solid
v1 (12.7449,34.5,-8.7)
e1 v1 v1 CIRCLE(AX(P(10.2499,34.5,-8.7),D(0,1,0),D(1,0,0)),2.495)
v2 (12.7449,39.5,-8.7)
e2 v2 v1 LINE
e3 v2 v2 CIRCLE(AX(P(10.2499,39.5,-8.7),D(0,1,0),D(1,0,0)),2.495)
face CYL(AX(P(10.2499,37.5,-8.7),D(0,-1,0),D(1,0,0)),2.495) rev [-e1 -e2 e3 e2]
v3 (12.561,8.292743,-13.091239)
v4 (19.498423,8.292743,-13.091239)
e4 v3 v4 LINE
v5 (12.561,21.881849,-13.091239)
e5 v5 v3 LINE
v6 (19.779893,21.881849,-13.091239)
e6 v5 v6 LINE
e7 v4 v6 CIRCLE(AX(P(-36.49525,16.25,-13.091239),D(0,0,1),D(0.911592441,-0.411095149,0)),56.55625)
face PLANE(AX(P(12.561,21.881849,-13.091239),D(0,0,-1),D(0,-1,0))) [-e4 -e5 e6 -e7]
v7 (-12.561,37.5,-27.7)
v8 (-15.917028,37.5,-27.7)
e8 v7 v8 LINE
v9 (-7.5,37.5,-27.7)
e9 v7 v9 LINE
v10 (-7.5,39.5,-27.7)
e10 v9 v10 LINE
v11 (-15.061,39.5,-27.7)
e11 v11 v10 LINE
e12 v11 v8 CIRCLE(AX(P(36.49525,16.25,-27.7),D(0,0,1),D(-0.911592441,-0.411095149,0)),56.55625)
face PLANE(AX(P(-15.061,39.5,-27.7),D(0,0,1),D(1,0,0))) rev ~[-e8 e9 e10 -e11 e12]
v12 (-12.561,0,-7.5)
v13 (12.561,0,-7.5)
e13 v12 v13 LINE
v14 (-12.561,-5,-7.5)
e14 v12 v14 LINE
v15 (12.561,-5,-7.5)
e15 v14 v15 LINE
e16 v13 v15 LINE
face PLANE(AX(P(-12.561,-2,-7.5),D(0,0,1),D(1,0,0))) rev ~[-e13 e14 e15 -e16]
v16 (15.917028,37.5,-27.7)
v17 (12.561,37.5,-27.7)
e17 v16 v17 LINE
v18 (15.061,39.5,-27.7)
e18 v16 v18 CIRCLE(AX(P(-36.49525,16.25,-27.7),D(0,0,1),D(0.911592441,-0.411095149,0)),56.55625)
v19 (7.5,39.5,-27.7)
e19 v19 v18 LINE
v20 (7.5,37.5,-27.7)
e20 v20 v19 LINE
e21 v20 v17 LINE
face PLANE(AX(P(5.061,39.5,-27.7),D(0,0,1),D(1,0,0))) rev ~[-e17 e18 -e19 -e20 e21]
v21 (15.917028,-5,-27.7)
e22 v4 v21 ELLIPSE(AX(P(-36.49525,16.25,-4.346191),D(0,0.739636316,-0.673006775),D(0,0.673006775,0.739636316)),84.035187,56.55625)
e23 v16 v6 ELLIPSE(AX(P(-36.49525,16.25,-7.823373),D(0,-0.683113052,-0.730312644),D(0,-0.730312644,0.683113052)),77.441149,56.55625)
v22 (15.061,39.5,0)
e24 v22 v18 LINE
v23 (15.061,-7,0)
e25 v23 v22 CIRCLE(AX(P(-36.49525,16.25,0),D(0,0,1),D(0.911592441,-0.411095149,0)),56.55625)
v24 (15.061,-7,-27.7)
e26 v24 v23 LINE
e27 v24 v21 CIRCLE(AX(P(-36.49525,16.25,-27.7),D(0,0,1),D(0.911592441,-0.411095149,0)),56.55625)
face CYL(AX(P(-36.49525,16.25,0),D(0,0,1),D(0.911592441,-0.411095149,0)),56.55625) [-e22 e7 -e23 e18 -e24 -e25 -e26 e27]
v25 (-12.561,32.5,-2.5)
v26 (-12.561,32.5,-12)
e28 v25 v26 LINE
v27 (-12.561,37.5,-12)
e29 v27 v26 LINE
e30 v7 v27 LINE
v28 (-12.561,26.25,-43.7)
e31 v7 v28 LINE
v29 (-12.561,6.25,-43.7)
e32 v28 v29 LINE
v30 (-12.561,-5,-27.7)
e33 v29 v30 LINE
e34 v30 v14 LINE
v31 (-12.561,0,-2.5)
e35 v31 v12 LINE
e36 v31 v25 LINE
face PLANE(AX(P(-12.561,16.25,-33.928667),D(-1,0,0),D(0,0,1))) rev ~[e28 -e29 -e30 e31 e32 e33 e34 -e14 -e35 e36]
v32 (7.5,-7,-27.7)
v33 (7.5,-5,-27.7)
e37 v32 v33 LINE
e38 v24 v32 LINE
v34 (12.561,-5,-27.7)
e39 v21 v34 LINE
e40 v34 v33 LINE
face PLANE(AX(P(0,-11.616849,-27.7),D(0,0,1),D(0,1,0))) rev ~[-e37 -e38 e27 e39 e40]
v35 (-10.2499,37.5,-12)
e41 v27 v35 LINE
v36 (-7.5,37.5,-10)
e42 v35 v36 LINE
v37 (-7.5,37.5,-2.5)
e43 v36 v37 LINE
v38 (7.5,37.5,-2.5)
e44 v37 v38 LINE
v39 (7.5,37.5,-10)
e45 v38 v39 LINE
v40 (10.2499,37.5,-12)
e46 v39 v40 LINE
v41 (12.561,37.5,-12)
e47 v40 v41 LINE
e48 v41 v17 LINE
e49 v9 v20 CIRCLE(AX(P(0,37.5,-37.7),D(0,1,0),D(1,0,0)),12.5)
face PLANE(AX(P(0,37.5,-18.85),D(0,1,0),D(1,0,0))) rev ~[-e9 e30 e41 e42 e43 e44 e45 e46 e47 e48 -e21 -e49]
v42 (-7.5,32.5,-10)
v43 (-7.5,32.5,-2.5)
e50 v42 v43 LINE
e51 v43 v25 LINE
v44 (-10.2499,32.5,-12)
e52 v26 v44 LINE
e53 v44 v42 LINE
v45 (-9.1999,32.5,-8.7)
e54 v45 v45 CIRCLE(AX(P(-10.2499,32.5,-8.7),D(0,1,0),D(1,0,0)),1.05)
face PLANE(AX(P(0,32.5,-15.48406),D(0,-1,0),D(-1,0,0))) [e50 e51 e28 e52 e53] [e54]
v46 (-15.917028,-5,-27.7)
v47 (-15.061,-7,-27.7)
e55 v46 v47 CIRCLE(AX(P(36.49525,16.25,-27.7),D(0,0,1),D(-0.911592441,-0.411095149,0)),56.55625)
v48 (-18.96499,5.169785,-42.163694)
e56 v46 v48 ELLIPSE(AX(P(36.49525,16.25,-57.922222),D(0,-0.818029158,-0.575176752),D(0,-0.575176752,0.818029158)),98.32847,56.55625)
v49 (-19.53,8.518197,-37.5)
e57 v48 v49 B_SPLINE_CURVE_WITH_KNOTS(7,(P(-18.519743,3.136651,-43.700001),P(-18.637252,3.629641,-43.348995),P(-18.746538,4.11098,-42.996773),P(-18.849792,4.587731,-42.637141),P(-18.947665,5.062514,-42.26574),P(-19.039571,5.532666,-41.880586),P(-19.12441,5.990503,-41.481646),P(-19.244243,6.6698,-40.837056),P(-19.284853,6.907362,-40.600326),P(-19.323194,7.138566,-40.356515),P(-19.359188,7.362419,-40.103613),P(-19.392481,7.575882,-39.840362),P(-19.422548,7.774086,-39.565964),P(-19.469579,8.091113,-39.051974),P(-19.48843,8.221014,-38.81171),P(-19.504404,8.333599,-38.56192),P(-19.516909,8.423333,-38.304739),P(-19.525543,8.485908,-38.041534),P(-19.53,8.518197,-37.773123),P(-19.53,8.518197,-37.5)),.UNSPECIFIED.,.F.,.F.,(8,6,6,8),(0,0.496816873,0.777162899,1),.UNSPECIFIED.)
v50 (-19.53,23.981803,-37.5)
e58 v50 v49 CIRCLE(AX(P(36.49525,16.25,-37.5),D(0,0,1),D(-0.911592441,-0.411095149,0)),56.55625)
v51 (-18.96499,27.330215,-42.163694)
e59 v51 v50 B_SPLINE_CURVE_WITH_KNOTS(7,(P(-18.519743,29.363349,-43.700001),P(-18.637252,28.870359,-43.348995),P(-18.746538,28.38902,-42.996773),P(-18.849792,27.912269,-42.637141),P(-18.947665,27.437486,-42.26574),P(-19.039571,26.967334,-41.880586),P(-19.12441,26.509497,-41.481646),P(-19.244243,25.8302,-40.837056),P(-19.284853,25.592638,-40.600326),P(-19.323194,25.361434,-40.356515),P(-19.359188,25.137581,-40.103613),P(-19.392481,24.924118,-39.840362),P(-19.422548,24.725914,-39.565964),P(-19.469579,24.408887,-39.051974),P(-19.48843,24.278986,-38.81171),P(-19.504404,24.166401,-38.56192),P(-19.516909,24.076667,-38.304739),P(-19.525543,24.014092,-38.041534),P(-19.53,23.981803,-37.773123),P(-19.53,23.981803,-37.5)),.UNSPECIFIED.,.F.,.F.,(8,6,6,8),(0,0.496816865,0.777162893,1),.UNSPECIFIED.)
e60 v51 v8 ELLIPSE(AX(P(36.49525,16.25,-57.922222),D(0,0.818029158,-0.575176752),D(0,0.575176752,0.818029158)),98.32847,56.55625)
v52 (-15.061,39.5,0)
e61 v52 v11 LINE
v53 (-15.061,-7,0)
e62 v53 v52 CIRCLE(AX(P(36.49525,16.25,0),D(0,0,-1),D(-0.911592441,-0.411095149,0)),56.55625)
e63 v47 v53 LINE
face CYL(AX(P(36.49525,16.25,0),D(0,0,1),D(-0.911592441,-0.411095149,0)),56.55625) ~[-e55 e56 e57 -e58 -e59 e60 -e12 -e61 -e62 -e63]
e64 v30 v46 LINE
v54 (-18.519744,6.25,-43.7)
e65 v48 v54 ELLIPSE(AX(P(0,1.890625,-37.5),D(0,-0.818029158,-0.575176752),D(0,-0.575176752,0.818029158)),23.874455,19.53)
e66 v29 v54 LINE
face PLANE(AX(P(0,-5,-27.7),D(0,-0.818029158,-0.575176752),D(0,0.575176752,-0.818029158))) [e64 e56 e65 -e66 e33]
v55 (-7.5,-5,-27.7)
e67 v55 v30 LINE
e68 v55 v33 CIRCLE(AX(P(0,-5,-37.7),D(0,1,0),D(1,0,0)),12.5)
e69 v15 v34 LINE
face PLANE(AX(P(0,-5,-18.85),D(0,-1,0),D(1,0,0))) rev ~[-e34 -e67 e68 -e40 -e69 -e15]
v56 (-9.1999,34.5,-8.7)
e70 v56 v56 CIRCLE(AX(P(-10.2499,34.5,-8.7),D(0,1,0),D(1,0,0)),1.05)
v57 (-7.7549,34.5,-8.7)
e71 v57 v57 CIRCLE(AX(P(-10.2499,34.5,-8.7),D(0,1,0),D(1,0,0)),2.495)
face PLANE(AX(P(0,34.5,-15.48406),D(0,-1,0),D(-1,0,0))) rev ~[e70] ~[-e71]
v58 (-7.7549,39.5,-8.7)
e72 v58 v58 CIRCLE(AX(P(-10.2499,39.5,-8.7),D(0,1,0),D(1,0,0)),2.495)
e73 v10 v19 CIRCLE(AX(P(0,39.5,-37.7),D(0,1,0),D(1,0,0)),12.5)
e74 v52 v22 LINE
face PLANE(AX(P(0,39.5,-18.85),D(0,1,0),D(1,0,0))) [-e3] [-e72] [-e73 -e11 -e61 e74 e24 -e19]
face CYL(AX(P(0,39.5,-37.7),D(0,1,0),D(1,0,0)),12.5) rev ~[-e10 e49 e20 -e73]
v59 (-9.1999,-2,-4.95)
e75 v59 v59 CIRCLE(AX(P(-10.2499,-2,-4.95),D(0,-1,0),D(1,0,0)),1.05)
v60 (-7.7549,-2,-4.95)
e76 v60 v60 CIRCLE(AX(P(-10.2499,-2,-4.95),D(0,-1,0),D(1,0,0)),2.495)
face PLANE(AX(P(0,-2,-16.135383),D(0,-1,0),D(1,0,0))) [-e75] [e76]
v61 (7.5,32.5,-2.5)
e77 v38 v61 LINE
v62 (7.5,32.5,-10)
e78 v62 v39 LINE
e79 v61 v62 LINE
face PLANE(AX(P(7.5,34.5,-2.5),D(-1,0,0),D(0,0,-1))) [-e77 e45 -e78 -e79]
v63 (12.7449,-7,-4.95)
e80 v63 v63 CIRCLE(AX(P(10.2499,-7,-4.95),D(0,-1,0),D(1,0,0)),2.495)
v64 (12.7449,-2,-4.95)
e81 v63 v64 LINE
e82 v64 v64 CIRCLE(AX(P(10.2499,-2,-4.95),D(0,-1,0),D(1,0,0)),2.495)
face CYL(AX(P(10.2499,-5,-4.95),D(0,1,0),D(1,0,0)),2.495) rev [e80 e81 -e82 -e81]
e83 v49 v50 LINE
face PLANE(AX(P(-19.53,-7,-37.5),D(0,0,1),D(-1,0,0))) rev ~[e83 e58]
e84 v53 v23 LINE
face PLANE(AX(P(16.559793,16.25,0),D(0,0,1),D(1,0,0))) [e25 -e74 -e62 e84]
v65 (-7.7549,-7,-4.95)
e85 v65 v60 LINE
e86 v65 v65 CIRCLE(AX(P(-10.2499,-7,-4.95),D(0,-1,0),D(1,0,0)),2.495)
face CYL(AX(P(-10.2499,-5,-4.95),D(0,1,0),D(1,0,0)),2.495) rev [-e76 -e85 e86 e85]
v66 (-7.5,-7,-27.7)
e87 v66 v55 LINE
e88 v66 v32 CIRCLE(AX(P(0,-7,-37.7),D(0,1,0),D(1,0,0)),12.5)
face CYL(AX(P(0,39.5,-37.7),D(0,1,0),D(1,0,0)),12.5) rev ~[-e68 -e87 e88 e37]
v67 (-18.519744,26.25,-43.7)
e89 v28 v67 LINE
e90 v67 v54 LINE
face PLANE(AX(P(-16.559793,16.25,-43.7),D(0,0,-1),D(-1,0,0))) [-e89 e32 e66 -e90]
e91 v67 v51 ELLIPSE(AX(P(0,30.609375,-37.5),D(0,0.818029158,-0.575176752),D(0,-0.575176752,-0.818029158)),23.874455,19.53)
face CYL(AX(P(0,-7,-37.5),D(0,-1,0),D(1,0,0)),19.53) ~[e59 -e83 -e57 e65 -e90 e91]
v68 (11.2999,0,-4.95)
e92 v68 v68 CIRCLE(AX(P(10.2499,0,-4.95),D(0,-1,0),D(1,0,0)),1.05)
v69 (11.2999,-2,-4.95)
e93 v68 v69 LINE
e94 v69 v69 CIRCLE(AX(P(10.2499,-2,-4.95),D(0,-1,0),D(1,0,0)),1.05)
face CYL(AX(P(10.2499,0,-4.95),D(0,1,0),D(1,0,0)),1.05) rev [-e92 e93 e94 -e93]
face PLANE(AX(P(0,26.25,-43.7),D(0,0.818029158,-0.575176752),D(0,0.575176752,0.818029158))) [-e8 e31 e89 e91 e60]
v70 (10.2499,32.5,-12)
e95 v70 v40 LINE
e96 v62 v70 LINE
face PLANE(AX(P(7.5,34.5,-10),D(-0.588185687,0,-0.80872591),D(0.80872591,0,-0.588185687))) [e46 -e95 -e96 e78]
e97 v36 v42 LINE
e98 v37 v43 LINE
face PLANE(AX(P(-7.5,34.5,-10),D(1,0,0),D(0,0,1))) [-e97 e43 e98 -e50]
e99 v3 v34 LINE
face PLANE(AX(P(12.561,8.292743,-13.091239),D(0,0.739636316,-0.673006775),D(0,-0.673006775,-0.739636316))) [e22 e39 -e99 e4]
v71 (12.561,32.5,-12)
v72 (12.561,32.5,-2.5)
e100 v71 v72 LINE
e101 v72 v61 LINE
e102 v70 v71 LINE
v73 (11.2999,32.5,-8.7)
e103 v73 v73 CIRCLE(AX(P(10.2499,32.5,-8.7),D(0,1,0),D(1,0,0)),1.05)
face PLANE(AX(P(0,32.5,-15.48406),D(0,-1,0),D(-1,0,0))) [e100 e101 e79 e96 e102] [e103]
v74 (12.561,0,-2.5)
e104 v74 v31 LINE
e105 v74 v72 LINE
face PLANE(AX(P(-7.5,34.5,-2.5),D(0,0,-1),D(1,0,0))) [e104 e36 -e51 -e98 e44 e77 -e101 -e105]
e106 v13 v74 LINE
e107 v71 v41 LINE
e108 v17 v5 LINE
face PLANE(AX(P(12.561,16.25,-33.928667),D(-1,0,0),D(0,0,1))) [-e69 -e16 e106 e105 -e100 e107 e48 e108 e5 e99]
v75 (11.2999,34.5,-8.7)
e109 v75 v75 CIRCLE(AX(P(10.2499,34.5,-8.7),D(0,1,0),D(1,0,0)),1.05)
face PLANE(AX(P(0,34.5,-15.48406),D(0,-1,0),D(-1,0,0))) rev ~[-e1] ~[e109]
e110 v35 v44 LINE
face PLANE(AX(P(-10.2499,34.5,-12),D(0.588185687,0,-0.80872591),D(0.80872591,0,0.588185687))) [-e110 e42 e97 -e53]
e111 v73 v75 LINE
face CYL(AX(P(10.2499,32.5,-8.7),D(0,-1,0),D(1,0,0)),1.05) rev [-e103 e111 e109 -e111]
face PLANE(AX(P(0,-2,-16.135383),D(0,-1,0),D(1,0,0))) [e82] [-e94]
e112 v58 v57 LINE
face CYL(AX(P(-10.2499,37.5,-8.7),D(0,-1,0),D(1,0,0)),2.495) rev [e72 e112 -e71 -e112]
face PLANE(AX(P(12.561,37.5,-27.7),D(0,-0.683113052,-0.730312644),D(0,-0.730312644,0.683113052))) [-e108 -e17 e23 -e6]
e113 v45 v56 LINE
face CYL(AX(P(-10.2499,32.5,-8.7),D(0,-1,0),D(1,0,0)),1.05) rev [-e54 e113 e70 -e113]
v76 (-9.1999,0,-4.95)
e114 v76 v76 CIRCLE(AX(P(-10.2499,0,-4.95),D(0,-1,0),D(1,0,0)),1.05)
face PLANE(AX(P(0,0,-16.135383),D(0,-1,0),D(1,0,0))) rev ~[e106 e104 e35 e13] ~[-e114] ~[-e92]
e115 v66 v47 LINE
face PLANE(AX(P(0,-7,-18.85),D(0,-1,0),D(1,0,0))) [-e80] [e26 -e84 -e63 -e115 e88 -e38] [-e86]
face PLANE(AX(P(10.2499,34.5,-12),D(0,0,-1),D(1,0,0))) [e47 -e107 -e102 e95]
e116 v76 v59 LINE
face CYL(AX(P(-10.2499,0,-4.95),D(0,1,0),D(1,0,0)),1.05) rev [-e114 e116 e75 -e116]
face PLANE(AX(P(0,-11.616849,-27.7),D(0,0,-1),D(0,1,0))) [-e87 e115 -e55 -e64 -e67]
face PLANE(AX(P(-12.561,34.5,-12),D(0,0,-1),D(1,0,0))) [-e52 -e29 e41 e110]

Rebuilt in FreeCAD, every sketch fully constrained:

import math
import FreeCAD as App
import Part
import Sketcher
Q = App.Units.Quantity


def add_polygon(sketch, points):
    """Adds a closed chain of lines whose ends are joined by coincident constraints."""
    first, n = sketch.GeometryCount, len(points)
    for a, b in zip(points, points[1:] + points[:1]):
        sketch.addGeometry(Part.LineSegment(App.Vector(*a, 0), App.Vector(*b, 0)), False)
    for i in range(n):
        sketch.addConstraint(Sketcher.Constraint("Coincident", first + i, 2, first + (i + 1) % n, 1))

doc = App.newDocument("Part")
body = doc.addObject("PartDesign::Body", "Body")

# Sketch on XZ plane
sketch1 = doc.addObject("Sketcher::SketchObject", "Sketch")
body.addObject(sketch1)
sketch1.AttachmentSupport = (doc.XZ_Plane, [""])
sketch1.MapMode = "FlatFace"
add_polygon(sketch1, [(15.1, 0), (15.1, -37.7), (12.6, -37.7), (12.6, -2.5), (-12.6, -2.5), (-12.6, -37.7), (-15.1, -37.7), (-15.1, 0)])  # lines 0-7
sketch1.addConstraint([
    Sketcher.Constraint("Vertical", 0),
    Sketcher.Constraint("Horizontal", 1),
    Sketcher.Constraint("Vertical", 2),
    Sketcher.Constraint("Horizontal", 3),
    Sketcher.Constraint("Vertical", 4),
    Sketcher.Constraint("Horizontal", 5),
    Sketcher.Constraint("Vertical", 6),
    Sketcher.Constraint("Horizontal", 7),
    Sketcher.Constraint("Symmetric", 6, 2, 7, 2, -1, 1),
    Sketcher.Constraint("Symmetric", 1, 2, 4, 2, -2),
    Sketcher.Constraint("DistanceX", 1, 2, 1, 1, Q("2.5 mm")),
    Sketcher.Constraint("DistanceY", 0, 2, 0, 1, Q("37.7 mm")),
    Sketcher.Constraint("DistanceY", 2, 1, 2, 2, Q("35.2 mm")),
    Sketcher.Constraint("DistanceX", 3, 2, 3, 1, Q("25.122 mm")),
])
pad1 = doc.addObject("PartDesign::Pad", "Pad")
body.addObject(pad1)
pad1.Profile = sketch1
pad1.Length = 32.5
pad1.Reversed = True

# Sketch on XZ plane
sketch2 = doc.addObject("Sketcher::SketchObject", "Sketch001")
body.addObject(sketch2)
sketch2.AttachmentSupport = (doc.XZ_Plane, [""])
sketch2.MapMode = "FlatFace"
add_polygon(sketch2, [(-15.1, 0), (-15.1, -37.7), (-12.6, -37.7), (-12.6, -7.5), (12.6, -7.5), (12.6, -37.7), (15.1, -37.7), (15.1, 0)])  # lines 0-7
sketch2.addGeometry(Part.Circle(App.Vector(-10.2, -5, 0), App.Vector(0, 0, 1), 1.1), False)  # 8
sketch2.addGeometry(Part.Circle(App.Vector(10.2, -5, 0), App.Vector(0, 0, 1), 1.1), False)  # 9
sketch2.addConstraint([
    Sketcher.Constraint("Vertical", 0),
    Sketcher.Constraint("Horizontal", 1),
    Sketcher.Constraint("Vertical", 2),
    Sketcher.Constraint("Horizontal", 3),
    Sketcher.Constraint("Vertical", 4),
    Sketcher.Constraint("Horizontal", 5),
    Sketcher.Constraint("Vertical", 6),
    Sketcher.Constraint("Horizontal", 7),
    Sketcher.Constraint("Equal", 8, 9),
    Sketcher.Constraint("Symmetric", 6, 2, 7, 2, -1, 1),
    Sketcher.Constraint("Symmetric", 8, 3, 9, 3, -2),
    Sketcher.Constraint("Symmetric", 1, 2, 4, 2, -2),
    Sketcher.Constraint("Diameter", 8, Q("2.1 mm")),
    Sketcher.Constraint("DistanceX", 1, 1, 1, 2, Q("2.5 mm")),
    Sketcher.Constraint("DistanceY", 0, 2, 0, 1, Q("37.7 mm")),
    Sketcher.Constraint("DistanceY", 2, 1, 2, 2, Q("30.2 mm")),
    Sketcher.Constraint("DistanceX", 3, 1, 3, 2, Q("25.122 mm")),
    Sketcher.Constraint("DistanceY", 8, 3, -1, 1, Q("4.95 mm")),
    Sketcher.Constraint("DistanceX", 8, 3, -1, 1, Q("10.2499 mm")),
])
pad2 = doc.addObject("PartDesign::Pad", "Pad001")
body.addObject(pad2)
pad2.Profile = sketch2
pad2.Length = 2

# Sketch on XZ plane
sketch3 = doc.addObject("Sketcher::SketchObject", "Sketch002")
body.addObject(sketch3)
sketch3.AttachmentSupport = (doc.XZ_Plane, [""])
sketch3.MapMode = "FlatFace"
sketch3.AttachmentOffset = App.Placement(App.Vector(0, 0, 2), App.Rotation())
add_polygon(sketch3, [(-15.1, 0), (-15.1, -37.7), (-12.6, -37.7), (-12.6, -7.5), (12.6, -7.5), (12.6, -37.7), (15.1, -37.7), (15.1, 0)])  # lines 0-7
sketch3.addGeometry(Part.Circle(App.Vector(-10.2, -5, 0), App.Vector(0, 0, 1), 2.5), False)  # 8
sketch3.addGeometry(Part.Circle(App.Vector(10.2, -5, 0), App.Vector(0, 0, 1), 2.5), False)  # 9
sketch3.addConstraint([
    Sketcher.Constraint("Vertical", 0),
    Sketcher.Constraint("Horizontal", 1),
    Sketcher.Constraint("Vertical", 2),
    Sketcher.Constraint("Horizontal", 3),
    Sketcher.Constraint("Vertical", 4),
    Sketcher.Constraint("Horizontal", 5),
    Sketcher.Constraint("Vertical", 6),
    Sketcher.Constraint("Horizontal", 7),
    Sketcher.Constraint("Equal", 8, 9),
    Sketcher.Constraint("Symmetric", 6, 2, 7, 2, -1, 1),
    Sketcher.Constraint("Symmetric", 8, 3, 9, 3, -2),
    Sketcher.Constraint("Symmetric", 1, 2, 4, 2, -2),
    Sketcher.Constraint("Diameter", 8, Q("4.99 mm")),
    Sketcher.Constraint("DistanceX", 1, 1, 1, 2, Q("2.5 mm")),
    Sketcher.Constraint("DistanceY", 0, 2, 0, 1, Q("37.7 mm")),
    Sketcher.Constraint("DistanceY", 2, 1, 2, 2, Q("30.2 mm")),
    Sketcher.Constraint("DistanceX", 3, 1, 3, 2, Q("25.122 mm")),
    Sketcher.Constraint("DistanceY", 8, 3, -1, 1, Q("4.95 mm")),
    Sketcher.Constraint("DistanceX", 8, 3, -1, 1, Q("10.2499 mm")),
])
pad3 = doc.addObject("PartDesign::Pad", "Pad002")
body.addObject(pad3)
pad3.Profile = sketch3
pad3.Length = 3

# Sketch on XZ plane
sketch4 = doc.addObject("Sketcher::SketchObject", "Sketch003")
body.addObject(sketch4)
sketch4.AttachmentSupport = (doc.XZ_Plane, [""])
sketch4.MapMode = "FlatFace"
sketch4.AttachmentOffset = App.Placement(App.Vector(0, 0, 5), App.Rotation())
add_polygon(sketch4, [(-15.1, 0), (-15.1, -37.7), (15.1, -37.7), (15.1, 0)])  # lines 0-3
sketch4.addGeometry(Part.Circle(App.Vector(-10.2, -5, 0), App.Vector(0, 0, 1), 2.5), False)  # 4
sketch4.addGeometry(Part.Circle(App.Vector(10.2, -5, 0), App.Vector(0, 0, 1), 2.5), False)  # 5
sketch4.addConstraint([
    Sketcher.Constraint("Vertical", 0),
    Sketcher.Constraint("Horizontal", 1),
    Sketcher.Constraint("Vertical", 2),
    Sketcher.Constraint("Horizontal", 3),
    Sketcher.Constraint("Equal", 4, 5),
    Sketcher.Constraint("Symmetric", 2, 2, 3, 2, -1, 1),
    Sketcher.Constraint("Symmetric", 4, 3, 5, 3, -2),
    Sketcher.Constraint("Diameter", 4, Q("4.99 mm")),
    Sketcher.Constraint("DistanceY", 0, 2, 0, 1, Q("37.7 mm")),
    Sketcher.Constraint("DistanceX", 1, 1, 1, 2, Q("30.122 mm")),
    Sketcher.Constraint("DistanceY", 4, 3, -1, 1, Q("4.95 mm")),
    Sketcher.Constraint("DistanceX", 4, 3, -1, 1, Q("10.2499 mm")),
])
pad4 = doc.addObject("PartDesign::Pad", "Pad003")
body.addObject(pad4)
pad4.Profile = sketch4
pad4.Length = 2

# Sketch on XZ plane
sketch5 = doc.addObject("Sketcher::SketchObject", "Sketch004")
body.addObject(sketch5)
sketch5.AttachmentSupport = (doc.XZ_Plane, [""])
sketch5.MapMode = "FlatFace"
sketch5.AttachmentOffset = App.Placement(App.Vector(0, 0, -32.5), App.Rotation())
add_polygon(sketch5, [(-7.5, -2.5), (-7.5, -10), (-10.2, -12), (-12.6, -12), (-12.6, -37.7), (-15.1, -37.7), (-15.1, 0), (15.1, 0), (15.1, -37.7), (12.6, -37.7), (12.6, -12), (10.2, -12), (7.5, -10), (7.5, -2.5)])  # lines 0-13
sketch5.addGeometry(Part.Circle(App.Vector(10.2, -8.7, 0), App.Vector(0, 0, 1), 1.1), False)  # 14
sketch5.addGeometry(Part.Circle(App.Vector(-10.2, -8.7, 0), App.Vector(0, 0, 1), 1.1), False)  # 15
sketch5.addConstraint([
    Sketcher.Constraint("Vertical", 0),
    Sketcher.Constraint("Horizontal", 2),
    Sketcher.Constraint("Vertical", 3),
    Sketcher.Constraint("Horizontal", 4),
    Sketcher.Constraint("Vertical", 5),
    Sketcher.Constraint("Horizontal", 6),
    Sketcher.Constraint("Vertical", 7),
    Sketcher.Constraint("Horizontal", 8),
    Sketcher.Constraint("Vertical", 9),
    Sketcher.Constraint("Horizontal", 10),
    Sketcher.Constraint("Vertical", 12),
    Sketcher.Constraint("Horizontal", 13),
    Sketcher.Constraint("Equal", 14, 15),
    Sketcher.Constraint("Symmetric", 5, 2, 6, 2, -1, 1),
    Sketcher.Constraint("Symmetric", 14, 3, 15, 3, -2),
    Sketcher.Constraint("Symmetric", 3, 2, 8, 2, -2),
    Sketcher.Constraint("Symmetric", 1, 2, 10, 2, -2),
    Sketcher.Constraint("Symmetric", 0, 2, 11, 2, -2),
    Sketcher.Constraint("Vertical", 15, 3, 1, 2),
    Sketcher.Constraint("Diameter", 14, Q("2.1 mm")),
    Sketcher.Constraint("DistanceX", 13, 2, 13, 1, Q("15 mm")),
    Sketcher.Constraint("DistanceX", 4, 2, 4, 1, Q("2.5 mm")),
    Sketcher.Constraint("DistanceY", 0, 2, 0, 1, Q("7.5 mm")),
    Sketcher.Constraint("DistanceY", 3, 2, 3, 1, Q("25.7 mm")),
    Sketcher.Constraint("DistanceY", 5, 1, 5, 2, Q("37.7 mm")),
    Sketcher.Constraint("DistanceY", 0, 2, -1, 1, Q("10 mm")),
    Sketcher.Constraint("DistanceY", 3, 2, 15, 3, Q("29 mm")),
    Sketcher.Constraint("DistanceX", 6, 1, 6, 2, Q("30.122 mm")),
    Sketcher.Constraint("DistanceX", 2, 2, 2, 1, Q("2.3111 mm")),
])
pad5 = doc.addObject("PartDesign::Pad", "Pad004")
body.addObject(pad5)
pad5.Profile = sketch5
pad5.Length = 2
pad5.Reversed = True

# Sketch on XZ plane
sketch6 = doc.addObject("Sketcher::SketchObject", "Sketch005")
body.addObject(sketch6)
sketch6.AttachmentSupport = (doc.XZ_Plane, [""])
sketch6.MapMode = "FlatFace"
sketch6.AttachmentOffset = App.Placement(App.Vector(0, 0, -34.5), App.Rotation())
add_polygon(sketch6, [(-15.1, -37.7), (-15.1, 0), (15.1, 0), (15.1, -37.7), (12.6, -37.7), (12.6, -12), (10.2, -12), (7.5, -10), (7.5, -2.5), (-7.5, -2.5), (-7.5, -10), (-10.2, -12), (-12.6, -12), (-12.6, -37.7)])  # lines 0-13
sketch6.addGeometry(Part.Circle(App.Vector(10.2, -8.7, 0), App.Vector(0, 0, 1), 2.5), False)  # 14
sketch6.addGeometry(Part.Circle(App.Vector(-10.2, -8.7, 0), App.Vector(0, 0, 1), 2.5), False)  # 15
sketch6.addConstraint([
    Sketcher.Constraint("Vertical", 0),
    Sketcher.Constraint("Horizontal", 1),
    Sketcher.Constraint("Vertical", 2),
    Sketcher.Constraint("Horizontal", 3),
    Sketcher.Constraint("Vertical", 4),
    Sketcher.Constraint("Horizontal", 5),
    Sketcher.Constraint("Vertical", 7),
    Sketcher.Constraint("Horizontal", 8),
    Sketcher.Constraint("Vertical", 9),
    Sketcher.Constraint("Horizontal", 11),
    Sketcher.Constraint("Vertical", 12),
    Sketcher.Constraint("Horizontal", 13),
    Sketcher.Constraint("Equal", 14, 15),
    Sketcher.Constraint("Symmetric", 0, 2, 1, 2, -1, 1),
    Sketcher.Constraint("Symmetric", 14, 3, 15, 3, -2),
    Sketcher.Constraint("Symmetric", 6, 2, 9, 2, -2),
    Sketcher.Constraint("Symmetric", 5, 2, 10, 2, -2),
    Sketcher.Constraint("Symmetric", 3, 2, 12, 2, -2),
    Sketcher.Constraint("Vertical", 14, 3, 5, 2),
    Sketcher.Constraint("Diameter", 14, Q("4.99 mm")),
    Sketcher.Constraint("DistanceX", 8, 2, 8, 1, Q("15 mm")),
    Sketcher.Constraint("DistanceX", 3, 2, 3, 1, Q("2.5 mm")),
    Sketcher.Constraint("DistanceY", 0, 1, 0, 2, Q("37.7 mm")),
    Sketcher.Constraint("DistanceY", 4, 1, 4, 2, Q("25.7 mm")),
    Sketcher.Constraint("DistanceY", 7, 1, 7, 2, Q("7.5 mm")),
    Sketcher.Constraint("DistanceY", 6, 2, -1, 1, Q("10 mm")),
    Sketcher.Constraint("DistanceY", 2, 2, 14, 3, Q("29 mm")),
    Sketcher.Constraint("DistanceX", 1, 1, 1, 2, Q("30.122 mm")),
    Sketcher.Constraint("DistanceX", 5, 2, 5, 1, Q("2.3111 mm")),
])
pad6 = doc.addObject("PartDesign::Pad", "Pad005")
body.addObject(pad6)
pad6.Profile = sketch6
pad6.Length = 3
pad6.Reversed = True

# Sketch on XZ plane
sketch7 = doc.addObject("Sketcher::SketchObject", "Sketch006")
body.addObject(sketch7)
sketch7.AttachmentSupport = (doc.XZ_Plane, [""])
sketch7.MapMode = "FlatFace"
sketch7.AttachmentOffset = App.Placement(App.Vector(0, 0, -37.5), App.Rotation())
add_polygon(sketch7, [(-15.1, -37.7), (-15.1, 0), (15.1, 0), (15.1, -37.7)])  # lines 0-3
sketch7.addGeometry(Part.Circle(App.Vector(-10.2, -8.7, 0), App.Vector(0, 0, 1), 2.5), False)  # 4
sketch7.addGeometry(Part.Circle(App.Vector(10.2, -8.7, 0), App.Vector(0, 0, 1), 2.5), False)  # 5
sketch7.addConstraint([
    Sketcher.Constraint("Vertical", 0),
    Sketcher.Constraint("Horizontal", 1),
    Sketcher.Constraint("Vertical", 2),
    Sketcher.Constraint("Horizontal", 3),
    Sketcher.Constraint("Equal", 4, 5),
    Sketcher.Constraint("Symmetric", 0, 2, 1, 2, -1, 1),
    Sketcher.Constraint("Symmetric", 4, 3, 5, 3, -2),
    Sketcher.Constraint("Diameter", 4, Q("4.99 mm")),
    Sketcher.Constraint("DistanceY", 0, 1, 0, 2, Q("37.7 mm")),
    Sketcher.Constraint("DistanceY", 2, 2, 5, 3, Q("29 mm")),
    Sketcher.Constraint("DistanceX", 1, 1, 1, 2, Q("30.122 mm")),
    Sketcher.Constraint("DistanceX", 4, 3, -1, 1, Q("10.2499 mm")),
])
pad7 = doc.addObject("PartDesign::Pad", "Pad006")
body.addObject(pad7)
pad7.Profile = sketch7
pad7.Length = 2
pad7.Reversed = True

# Sketch on XZ plane
sketch8 = doc.addObject("Sketcher::SketchObject", "Sketch007")
body.addObject(sketch8)
sketch8.AttachmentSupport = (doc.XZ_Plane, [""])
sketch8.MapMode = "FlatFace"
sketch8.AttachmentOffset = App.Placement(App.Vector(0, 0, -39.5), App.Rotation())
sketch8.addGeometry(Part.Circle(App.Vector(0, -38, 0), App.Vector(0, 0, 1), 12), False)
sketch8.addConstraint([
    Sketcher.Constraint("PointOnObject", 0, 3, -2),
    Sketcher.Constraint("Diameter", 0, Q("25 mm")),
    Sketcher.Constraint("DistanceY", 0, 3, -1, 1, Q("37.7 mm")),
])
pocket1 = doc.addObject("PartDesign::Pocket", "Pocket")
body.addObject(pocket1)
pocket1.Profile = sketch8
pocket1.Type = "ThroughAll"
pocket1.Reversed = True

# Sketch on XZ plane
sketch9 = doc.addObject("Sketcher::SketchObject", "Sketch008")
body.addObject(sketch9)
sketch9.AttachmentSupport = (doc.XZ_Plane, [""])
sketch9.MapMode = "FlatFace"
sketch9.AttachmentOffset = App.Placement(App.Vector(0, 0, -39.5), App.Rotation())
add_polygon(sketch9, [(-15, -38), (-15, -28), (-5, -28), (-5, -38)])  # lines 0-3
add_polygon(sketch9, [(5, -38), (5, -28), (15, -28), (15, -38)])  # lines 4-7
sketch9.addConstraint([
    Sketcher.Constraint("Vertical", 0),
    Sketcher.Constraint("Horizontal", 1),
    Sketcher.Constraint("Vertical", 2),
    Sketcher.Constraint("Horizontal", 3),
    Sketcher.Constraint("Vertical", 4),
    Sketcher.Constraint("Horizontal", 5),
    Sketcher.Constraint("Vertical", 6),
    Sketcher.Constraint("Horizontal", 7),
    Sketcher.Constraint("Symmetric", 1, 2, 4, 2, -2),
    Sketcher.Constraint("Symmetric", 3, 2, 6, 2, -2),
    Sketcher.Constraint("Equal", 7, 0),
    Sketcher.Constraint("DistanceX", 1, 1, 1, 2, Q("10 mm")),
    Sketcher.Constraint("DistanceY", 0, 2, -1, 1, Q("27.7 mm")),
    Sketcher.Constraint("DistanceX", 0, 2, -1, 1, Q("15.061 mm")),
])
pocket2 = doc.addObject("PartDesign::Pocket", "Pocket001")
body.addObject(pocket2)
pocket2.Profile = sketch9
pocket2.Type = "ThroughAll"
pocket2.Reversed = True

# Sketch on YZ plane
sketch10 = doc.addObject("Sketcher::SketchObject", "Sketch009")
body.addObject(sketch10)
sketch10.AttachmentSupport = (doc.YZ_Plane, [""])
sketch10.MapMode = "FlatFace"
sketch10.AttachmentOffset = App.Placement(App.Vector(0, 0, -15.061), App.Rotation())
add_polygon(sketch10, [(38, -28), (26, -44), (6, -44), (-5, -28)])  # lines 0-3
sketch10.addConstraint([
    Sketcher.Constraint("Horizontal", 1),
    Sketcher.Constraint("Horizontal", 3),
    Sketcher.Constraint("Equal", 0, 2),
    Sketcher.Constraint("DistanceX", 1, 2, 1, 1, Q("20 mm")),
    Sketcher.Constraint("DistanceX", 3, 1, 3, 2, Q("42.5 mm")),
    Sketcher.Constraint("DistanceX", 2, 2, -1, 1, Q("5 mm")),
    Sketcher.Constraint("DistanceY", 1, 2, 2, 2, Q("16 mm")),
    Sketcher.Constraint("DistanceY", 0, 2, -1, 1, Q("43.7 mm")),
])
pad8 = doc.addObject("PartDesign::Pad", "Pad007")
body.addObject(pad8)
pad8.Profile = sketch10
pad8.Length = 2.5

# Sketch on YZ plane
sketch11 = doc.addObject("Sketcher::SketchObject", "Sketch010")
body.addObject(sketch11)
sketch11.AttachmentSupport = (doc.YZ_Plane, [""])
sketch11.MapMode = "FlatFace"
sketch11.AttachmentOffset = App.Placement(App.Vector(0, 0, 15.061), App.Rotation())
add_polygon(sketch11, [(26, -44), (38, -28), (-5, -28), (6, -44)])  # lines 0-3
sketch11.addConstraint([
    Sketcher.Constraint("Horizontal", 1),
    Sketcher.Constraint("Horizontal", 3),
    Sketcher.Constraint("Equal", 0, 2),
    Sketcher.Constraint("DistanceX", 3, 1, 3, 2, Q("20 mm")),
    Sketcher.Constraint("DistanceX", 1, 2, 1, 1, Q("42.5 mm")),
    Sketcher.Constraint("DistanceX", 1, 2, -1, 1, Q("5 mm")),
    Sketcher.Constraint("DistanceY", 2, 2, 1, 2, Q("16 mm")),
    Sketcher.Constraint("DistanceY", 0, 2, -1, 1, Q("27.7 mm")),
])
pad9 = doc.addObject("PartDesign::Pad", "Pad008")
body.addObject(pad9)
pad9.Profile = sketch11
pad9.Length = 2.5
pad9.Reversed = True

# Sketch on XY plane
sketch12 = doc.addObject("Sketcher::SketchObject", "Sketch011")
body.addObject(sketch12)
sketch12.AttachmentSupport = (doc.XY_Plane, [""])
sketch12.MapMode = "FlatFace"
sketch12.addGeometry([
    Part.LineSegment(App.Vector(15, 40, 0), App.Vector(15, -7, 0)),
    Part.ArcOfCircle(Part.Circle(App.Vector(-36, 16, 0), App.Vector(0, 0, 1), 57), math.radians(-24), math.radians(24)),
    Part.LineSegment(App.Vector(-15, -7, 0), App.Vector(-15, 40, 0)),
    Part.ArcOfCircle(Part.Circle(App.Vector(36, 16, 0), App.Vector(0, 0, 1), 57), math.radians(156), math.radians(204)),
], False)
sketch12.addConstraint([
    Sketcher.Constraint("Coincident", 0, 1, 1, 2),
    Sketcher.Constraint("Coincident", 1, 1, 0, 2),
    Sketcher.Constraint("Coincident", 2, 1, 3, 2),
    Sketcher.Constraint("Coincident", 3, 1, 2, 2),
    Sketcher.Constraint("Vertical", 0),
    Sketcher.Constraint("Vertical", 2),
    Sketcher.Constraint("Equal", 1, 3),
    Sketcher.Constraint("Symmetric", 1, 3, 3, 3, -2),
    Sketcher.Constraint("Horizontal", 1, 1, 2, 1),
    Sketcher.Constraint("DistanceY", 0, 2, 0, 1, Q("46.5 mm")),
    Sketcher.Constraint("DistanceY", 1, 1, -1, 1, Q("7 mm")),
    Sketcher.Constraint("Radius", 1, Q("56.55625 mm")),
    Sketcher.Constraint("DistanceX", -1, 1, 0, 1, Q("15.061 mm")),
])
pad10 = doc.addObject("PartDesign::Pad", "Pad009")
body.addObject(pad10)
pad10.Profile = sketch12
pad10.Length = 43.7
pad10.Reversed = True

# Sketch on YZ plane
sketch13 = doc.addObject("Sketcher::SketchObject", "Sketch012")
body.addObject(sketch13)
sketch13.AttachmentSupport = (doc.YZ_Plane, [""])
sketch13.MapMode = "FlatFace"
add_polygon(sketch13, [(39.5, -27.7), (37.5, -27.7), (26.2, -43.7), (6.2, -43.7), (-5, -27.7), (-11.6, -27.7), (-11.6, -50.4), (39.5, -50.4)])  # lines 0-7
sketch13.addConstraint([
    Sketcher.Constraint("Horizontal", 0),
    Sketcher.Constraint("Horizontal", 2),
    Sketcher.Constraint("Horizontal", 4),
    Sketcher.Constraint("Vertical", 5),
    Sketcher.Constraint("Horizontal", 6),
    Sketcher.Constraint("Vertical", 7),
    Sketcher.Constraint("Horizontal", 0, 2, 3, 2),
    Sketcher.Constraint("Equal", 1, 3),
    Sketcher.Constraint("DistanceX", 0, 2, 0, 1, Q("2 mm")),
    Sketcher.Constraint("DistanceX", 2, 2, 2, 1, Q("20 mm")),
    Sketcher.Constraint("DistanceX", 3, 2, -1, 1, Q("5 mm")),
    Sketcher.Constraint("DistanceY", 1, 2, 0, 2, Q("16 mm")),
    Sketcher.Constraint("DistanceX", -1, 1, 0, 2, Q("37.5 mm")),
    Sketcher.Constraint("DistanceY", 0, 2, -1, 1, Q("27.7 mm")),
    Sketcher.Constraint("DistanceX", 4, 2, 4, 1, Q("6.616849 mm")),
    Sketcher.Constraint("DistanceY", 5, 2, 5, 1, Q("22.672745 mm")),
])
pocket3 = doc.addObject("PartDesign::Pocket", "Pocket002")
body.addObject(pocket3)
pocket3.Profile = sketch13
pocket3.Type = "ThroughAll"
pocket3.Midplane = True

# Sketch on YZ plane
sketch14 = doc.addObject("Sketcher::SketchObject", "Sketch013")
body.addObject(sketch14)
sketch14.AttachmentSupport = (doc.YZ_Plane, [""])
sketch14.MapMode = "FlatFace"
sketch14.AttachmentOffset = App.Placement(App.Vector(0, 0, 12.561), App.Rotation())
add_polygon(sketch14, [(22, -13), (38, -28), (37, -49), (-3, -48), (-5, -28), (8, -13)])  # lines 0-5
sketch14.addConstraint([
    Sketcher.Constraint("Horizontal", 5),
    Sketcher.Constraint("Horizontal", 0, 2, 3, 2),
    Sketcher.Constraint("DistanceX", 3, 2, -1, 1, Q("5 mm")),
    Sketcher.Constraint("DistanceX", -1, 1, 0, 2, Q("37.5 mm")),
    Sketcher.Constraint("DistanceY", 0, 2, -1, 1, Q("27.7 mm")),
    Sketcher.Constraint("DistanceX", 2, 2, -1, 1, Q("3.3343 mm")),
    Sketcher.Constraint("Distance", 0, Q("21.385569 mm")),
    Sketcher.Constraint("Distance", 1, Q("21.67343 mm")),
    Sketcher.Constraint("Distance", 2, Q("39.916728 mm")),
    Sketcher.Constraint("Distance", 3, Q("20.41311 mm")),
    Sketcher.Constraint("DistanceX", 5, 1, 5, 2, Q("13.589106 mm")),
    Sketcher.Constraint("DistanceY", 4, 2, -1, 1, Q("13.091239 mm")),
])
pocket4 = doc.addObject("PartDesign::Pocket", "Pocket003")
body.addObject(pocket4)
pocket4.Profile = sketch14
pocket4.Type = "ThroughAll"
pocket4.Reversed = True

# Sketch on XZ plane
sketch15 = doc.addObject("Sketcher::SketchObject", "Sketch014")
body.addObject(sketch15)
sketch15.AttachmentSupport = (doc.XZ_Plane, [""])
sketch15.MapMode = "FlatFace"
sketch15.AttachmentOffset = App.Placement(App.Vector(0, 0, 7), App.Rotation())
sketch15.addGeometry([
    Part.LineSegment(App.Vector(-20, -76, 0), App.Vector(20, -77, 0)),  # 0
    Part.LineSegment(App.Vector(20, -77, 0), App.Vector(20, -38, 0)),  # 1
    Part.ArcOfCircle(Part.Circle(App.Vector(0, -38, 0), App.Vector(0, 0, 1), 20), math.radians(180), math.radians(360)),  # 2
    Part.LineSegment(App.Vector(-20, -38, 0), App.Vector(-36, -38, 0)),  # 3
    Part.LineSegment(App.Vector(-36, -38, 0), App.Vector(-36, -76, 0)),  # 4
    Part.LineSegment(App.Vector(-36, -76, 0), App.Vector(-20, -76, 0)),  # 5
], False)
sketch15.addConstraint([
    Sketcher.Constraint("Coincident", 0, 2, 1, 1),
    Sketcher.Constraint("Tangent", 1, 2, 2, 2),
    Sketcher.Constraint("Coincident", 2, 1, 3, 1),
    Sketcher.Constraint("Coincident", 3, 2, 4, 1),
    Sketcher.Constraint("Coincident", 4, 2, 5, 1),
    Sketcher.Constraint("Coincident", 5, 2, 0, 1),
    Sketcher.Constraint("Vertical", 1),
    Sketcher.Constraint("Horizontal", 3),
    Sketcher.Constraint("Vertical", 4),
    Sketcher.Constraint("Horizontal", 5),
    Sketcher.Constraint("Symmetric", 1, 2, 2, 1, -2),
    Sketcher.Constraint("Vertical", 2, 1, 5, 2),
    Sketcher.Constraint("Radius", 2, Q("19.53 mm")),
    Sketcher.Constraint("DistanceY", 2, 3, -1, 1, Q("37.5 mm")),
    Sketcher.Constraint("DistanceY", 1, 1, 1, 2, Q("39.824699 mm")),
    Sketcher.Constraint("DistanceX", 3, 2, 3, 1, Q("16.700716 mm")),
    Sketcher.Constraint("DistanceY", 4, 2, 4, 1, Q("38.968983 mm")),
])
pocket5 = doc.addObject("PartDesign::Pocket", "Pocket004")
body.addObject(pocket5)
pocket5.Profile = sketch15
pocket5.Type = "ThroughAll"

doc.recompute()
